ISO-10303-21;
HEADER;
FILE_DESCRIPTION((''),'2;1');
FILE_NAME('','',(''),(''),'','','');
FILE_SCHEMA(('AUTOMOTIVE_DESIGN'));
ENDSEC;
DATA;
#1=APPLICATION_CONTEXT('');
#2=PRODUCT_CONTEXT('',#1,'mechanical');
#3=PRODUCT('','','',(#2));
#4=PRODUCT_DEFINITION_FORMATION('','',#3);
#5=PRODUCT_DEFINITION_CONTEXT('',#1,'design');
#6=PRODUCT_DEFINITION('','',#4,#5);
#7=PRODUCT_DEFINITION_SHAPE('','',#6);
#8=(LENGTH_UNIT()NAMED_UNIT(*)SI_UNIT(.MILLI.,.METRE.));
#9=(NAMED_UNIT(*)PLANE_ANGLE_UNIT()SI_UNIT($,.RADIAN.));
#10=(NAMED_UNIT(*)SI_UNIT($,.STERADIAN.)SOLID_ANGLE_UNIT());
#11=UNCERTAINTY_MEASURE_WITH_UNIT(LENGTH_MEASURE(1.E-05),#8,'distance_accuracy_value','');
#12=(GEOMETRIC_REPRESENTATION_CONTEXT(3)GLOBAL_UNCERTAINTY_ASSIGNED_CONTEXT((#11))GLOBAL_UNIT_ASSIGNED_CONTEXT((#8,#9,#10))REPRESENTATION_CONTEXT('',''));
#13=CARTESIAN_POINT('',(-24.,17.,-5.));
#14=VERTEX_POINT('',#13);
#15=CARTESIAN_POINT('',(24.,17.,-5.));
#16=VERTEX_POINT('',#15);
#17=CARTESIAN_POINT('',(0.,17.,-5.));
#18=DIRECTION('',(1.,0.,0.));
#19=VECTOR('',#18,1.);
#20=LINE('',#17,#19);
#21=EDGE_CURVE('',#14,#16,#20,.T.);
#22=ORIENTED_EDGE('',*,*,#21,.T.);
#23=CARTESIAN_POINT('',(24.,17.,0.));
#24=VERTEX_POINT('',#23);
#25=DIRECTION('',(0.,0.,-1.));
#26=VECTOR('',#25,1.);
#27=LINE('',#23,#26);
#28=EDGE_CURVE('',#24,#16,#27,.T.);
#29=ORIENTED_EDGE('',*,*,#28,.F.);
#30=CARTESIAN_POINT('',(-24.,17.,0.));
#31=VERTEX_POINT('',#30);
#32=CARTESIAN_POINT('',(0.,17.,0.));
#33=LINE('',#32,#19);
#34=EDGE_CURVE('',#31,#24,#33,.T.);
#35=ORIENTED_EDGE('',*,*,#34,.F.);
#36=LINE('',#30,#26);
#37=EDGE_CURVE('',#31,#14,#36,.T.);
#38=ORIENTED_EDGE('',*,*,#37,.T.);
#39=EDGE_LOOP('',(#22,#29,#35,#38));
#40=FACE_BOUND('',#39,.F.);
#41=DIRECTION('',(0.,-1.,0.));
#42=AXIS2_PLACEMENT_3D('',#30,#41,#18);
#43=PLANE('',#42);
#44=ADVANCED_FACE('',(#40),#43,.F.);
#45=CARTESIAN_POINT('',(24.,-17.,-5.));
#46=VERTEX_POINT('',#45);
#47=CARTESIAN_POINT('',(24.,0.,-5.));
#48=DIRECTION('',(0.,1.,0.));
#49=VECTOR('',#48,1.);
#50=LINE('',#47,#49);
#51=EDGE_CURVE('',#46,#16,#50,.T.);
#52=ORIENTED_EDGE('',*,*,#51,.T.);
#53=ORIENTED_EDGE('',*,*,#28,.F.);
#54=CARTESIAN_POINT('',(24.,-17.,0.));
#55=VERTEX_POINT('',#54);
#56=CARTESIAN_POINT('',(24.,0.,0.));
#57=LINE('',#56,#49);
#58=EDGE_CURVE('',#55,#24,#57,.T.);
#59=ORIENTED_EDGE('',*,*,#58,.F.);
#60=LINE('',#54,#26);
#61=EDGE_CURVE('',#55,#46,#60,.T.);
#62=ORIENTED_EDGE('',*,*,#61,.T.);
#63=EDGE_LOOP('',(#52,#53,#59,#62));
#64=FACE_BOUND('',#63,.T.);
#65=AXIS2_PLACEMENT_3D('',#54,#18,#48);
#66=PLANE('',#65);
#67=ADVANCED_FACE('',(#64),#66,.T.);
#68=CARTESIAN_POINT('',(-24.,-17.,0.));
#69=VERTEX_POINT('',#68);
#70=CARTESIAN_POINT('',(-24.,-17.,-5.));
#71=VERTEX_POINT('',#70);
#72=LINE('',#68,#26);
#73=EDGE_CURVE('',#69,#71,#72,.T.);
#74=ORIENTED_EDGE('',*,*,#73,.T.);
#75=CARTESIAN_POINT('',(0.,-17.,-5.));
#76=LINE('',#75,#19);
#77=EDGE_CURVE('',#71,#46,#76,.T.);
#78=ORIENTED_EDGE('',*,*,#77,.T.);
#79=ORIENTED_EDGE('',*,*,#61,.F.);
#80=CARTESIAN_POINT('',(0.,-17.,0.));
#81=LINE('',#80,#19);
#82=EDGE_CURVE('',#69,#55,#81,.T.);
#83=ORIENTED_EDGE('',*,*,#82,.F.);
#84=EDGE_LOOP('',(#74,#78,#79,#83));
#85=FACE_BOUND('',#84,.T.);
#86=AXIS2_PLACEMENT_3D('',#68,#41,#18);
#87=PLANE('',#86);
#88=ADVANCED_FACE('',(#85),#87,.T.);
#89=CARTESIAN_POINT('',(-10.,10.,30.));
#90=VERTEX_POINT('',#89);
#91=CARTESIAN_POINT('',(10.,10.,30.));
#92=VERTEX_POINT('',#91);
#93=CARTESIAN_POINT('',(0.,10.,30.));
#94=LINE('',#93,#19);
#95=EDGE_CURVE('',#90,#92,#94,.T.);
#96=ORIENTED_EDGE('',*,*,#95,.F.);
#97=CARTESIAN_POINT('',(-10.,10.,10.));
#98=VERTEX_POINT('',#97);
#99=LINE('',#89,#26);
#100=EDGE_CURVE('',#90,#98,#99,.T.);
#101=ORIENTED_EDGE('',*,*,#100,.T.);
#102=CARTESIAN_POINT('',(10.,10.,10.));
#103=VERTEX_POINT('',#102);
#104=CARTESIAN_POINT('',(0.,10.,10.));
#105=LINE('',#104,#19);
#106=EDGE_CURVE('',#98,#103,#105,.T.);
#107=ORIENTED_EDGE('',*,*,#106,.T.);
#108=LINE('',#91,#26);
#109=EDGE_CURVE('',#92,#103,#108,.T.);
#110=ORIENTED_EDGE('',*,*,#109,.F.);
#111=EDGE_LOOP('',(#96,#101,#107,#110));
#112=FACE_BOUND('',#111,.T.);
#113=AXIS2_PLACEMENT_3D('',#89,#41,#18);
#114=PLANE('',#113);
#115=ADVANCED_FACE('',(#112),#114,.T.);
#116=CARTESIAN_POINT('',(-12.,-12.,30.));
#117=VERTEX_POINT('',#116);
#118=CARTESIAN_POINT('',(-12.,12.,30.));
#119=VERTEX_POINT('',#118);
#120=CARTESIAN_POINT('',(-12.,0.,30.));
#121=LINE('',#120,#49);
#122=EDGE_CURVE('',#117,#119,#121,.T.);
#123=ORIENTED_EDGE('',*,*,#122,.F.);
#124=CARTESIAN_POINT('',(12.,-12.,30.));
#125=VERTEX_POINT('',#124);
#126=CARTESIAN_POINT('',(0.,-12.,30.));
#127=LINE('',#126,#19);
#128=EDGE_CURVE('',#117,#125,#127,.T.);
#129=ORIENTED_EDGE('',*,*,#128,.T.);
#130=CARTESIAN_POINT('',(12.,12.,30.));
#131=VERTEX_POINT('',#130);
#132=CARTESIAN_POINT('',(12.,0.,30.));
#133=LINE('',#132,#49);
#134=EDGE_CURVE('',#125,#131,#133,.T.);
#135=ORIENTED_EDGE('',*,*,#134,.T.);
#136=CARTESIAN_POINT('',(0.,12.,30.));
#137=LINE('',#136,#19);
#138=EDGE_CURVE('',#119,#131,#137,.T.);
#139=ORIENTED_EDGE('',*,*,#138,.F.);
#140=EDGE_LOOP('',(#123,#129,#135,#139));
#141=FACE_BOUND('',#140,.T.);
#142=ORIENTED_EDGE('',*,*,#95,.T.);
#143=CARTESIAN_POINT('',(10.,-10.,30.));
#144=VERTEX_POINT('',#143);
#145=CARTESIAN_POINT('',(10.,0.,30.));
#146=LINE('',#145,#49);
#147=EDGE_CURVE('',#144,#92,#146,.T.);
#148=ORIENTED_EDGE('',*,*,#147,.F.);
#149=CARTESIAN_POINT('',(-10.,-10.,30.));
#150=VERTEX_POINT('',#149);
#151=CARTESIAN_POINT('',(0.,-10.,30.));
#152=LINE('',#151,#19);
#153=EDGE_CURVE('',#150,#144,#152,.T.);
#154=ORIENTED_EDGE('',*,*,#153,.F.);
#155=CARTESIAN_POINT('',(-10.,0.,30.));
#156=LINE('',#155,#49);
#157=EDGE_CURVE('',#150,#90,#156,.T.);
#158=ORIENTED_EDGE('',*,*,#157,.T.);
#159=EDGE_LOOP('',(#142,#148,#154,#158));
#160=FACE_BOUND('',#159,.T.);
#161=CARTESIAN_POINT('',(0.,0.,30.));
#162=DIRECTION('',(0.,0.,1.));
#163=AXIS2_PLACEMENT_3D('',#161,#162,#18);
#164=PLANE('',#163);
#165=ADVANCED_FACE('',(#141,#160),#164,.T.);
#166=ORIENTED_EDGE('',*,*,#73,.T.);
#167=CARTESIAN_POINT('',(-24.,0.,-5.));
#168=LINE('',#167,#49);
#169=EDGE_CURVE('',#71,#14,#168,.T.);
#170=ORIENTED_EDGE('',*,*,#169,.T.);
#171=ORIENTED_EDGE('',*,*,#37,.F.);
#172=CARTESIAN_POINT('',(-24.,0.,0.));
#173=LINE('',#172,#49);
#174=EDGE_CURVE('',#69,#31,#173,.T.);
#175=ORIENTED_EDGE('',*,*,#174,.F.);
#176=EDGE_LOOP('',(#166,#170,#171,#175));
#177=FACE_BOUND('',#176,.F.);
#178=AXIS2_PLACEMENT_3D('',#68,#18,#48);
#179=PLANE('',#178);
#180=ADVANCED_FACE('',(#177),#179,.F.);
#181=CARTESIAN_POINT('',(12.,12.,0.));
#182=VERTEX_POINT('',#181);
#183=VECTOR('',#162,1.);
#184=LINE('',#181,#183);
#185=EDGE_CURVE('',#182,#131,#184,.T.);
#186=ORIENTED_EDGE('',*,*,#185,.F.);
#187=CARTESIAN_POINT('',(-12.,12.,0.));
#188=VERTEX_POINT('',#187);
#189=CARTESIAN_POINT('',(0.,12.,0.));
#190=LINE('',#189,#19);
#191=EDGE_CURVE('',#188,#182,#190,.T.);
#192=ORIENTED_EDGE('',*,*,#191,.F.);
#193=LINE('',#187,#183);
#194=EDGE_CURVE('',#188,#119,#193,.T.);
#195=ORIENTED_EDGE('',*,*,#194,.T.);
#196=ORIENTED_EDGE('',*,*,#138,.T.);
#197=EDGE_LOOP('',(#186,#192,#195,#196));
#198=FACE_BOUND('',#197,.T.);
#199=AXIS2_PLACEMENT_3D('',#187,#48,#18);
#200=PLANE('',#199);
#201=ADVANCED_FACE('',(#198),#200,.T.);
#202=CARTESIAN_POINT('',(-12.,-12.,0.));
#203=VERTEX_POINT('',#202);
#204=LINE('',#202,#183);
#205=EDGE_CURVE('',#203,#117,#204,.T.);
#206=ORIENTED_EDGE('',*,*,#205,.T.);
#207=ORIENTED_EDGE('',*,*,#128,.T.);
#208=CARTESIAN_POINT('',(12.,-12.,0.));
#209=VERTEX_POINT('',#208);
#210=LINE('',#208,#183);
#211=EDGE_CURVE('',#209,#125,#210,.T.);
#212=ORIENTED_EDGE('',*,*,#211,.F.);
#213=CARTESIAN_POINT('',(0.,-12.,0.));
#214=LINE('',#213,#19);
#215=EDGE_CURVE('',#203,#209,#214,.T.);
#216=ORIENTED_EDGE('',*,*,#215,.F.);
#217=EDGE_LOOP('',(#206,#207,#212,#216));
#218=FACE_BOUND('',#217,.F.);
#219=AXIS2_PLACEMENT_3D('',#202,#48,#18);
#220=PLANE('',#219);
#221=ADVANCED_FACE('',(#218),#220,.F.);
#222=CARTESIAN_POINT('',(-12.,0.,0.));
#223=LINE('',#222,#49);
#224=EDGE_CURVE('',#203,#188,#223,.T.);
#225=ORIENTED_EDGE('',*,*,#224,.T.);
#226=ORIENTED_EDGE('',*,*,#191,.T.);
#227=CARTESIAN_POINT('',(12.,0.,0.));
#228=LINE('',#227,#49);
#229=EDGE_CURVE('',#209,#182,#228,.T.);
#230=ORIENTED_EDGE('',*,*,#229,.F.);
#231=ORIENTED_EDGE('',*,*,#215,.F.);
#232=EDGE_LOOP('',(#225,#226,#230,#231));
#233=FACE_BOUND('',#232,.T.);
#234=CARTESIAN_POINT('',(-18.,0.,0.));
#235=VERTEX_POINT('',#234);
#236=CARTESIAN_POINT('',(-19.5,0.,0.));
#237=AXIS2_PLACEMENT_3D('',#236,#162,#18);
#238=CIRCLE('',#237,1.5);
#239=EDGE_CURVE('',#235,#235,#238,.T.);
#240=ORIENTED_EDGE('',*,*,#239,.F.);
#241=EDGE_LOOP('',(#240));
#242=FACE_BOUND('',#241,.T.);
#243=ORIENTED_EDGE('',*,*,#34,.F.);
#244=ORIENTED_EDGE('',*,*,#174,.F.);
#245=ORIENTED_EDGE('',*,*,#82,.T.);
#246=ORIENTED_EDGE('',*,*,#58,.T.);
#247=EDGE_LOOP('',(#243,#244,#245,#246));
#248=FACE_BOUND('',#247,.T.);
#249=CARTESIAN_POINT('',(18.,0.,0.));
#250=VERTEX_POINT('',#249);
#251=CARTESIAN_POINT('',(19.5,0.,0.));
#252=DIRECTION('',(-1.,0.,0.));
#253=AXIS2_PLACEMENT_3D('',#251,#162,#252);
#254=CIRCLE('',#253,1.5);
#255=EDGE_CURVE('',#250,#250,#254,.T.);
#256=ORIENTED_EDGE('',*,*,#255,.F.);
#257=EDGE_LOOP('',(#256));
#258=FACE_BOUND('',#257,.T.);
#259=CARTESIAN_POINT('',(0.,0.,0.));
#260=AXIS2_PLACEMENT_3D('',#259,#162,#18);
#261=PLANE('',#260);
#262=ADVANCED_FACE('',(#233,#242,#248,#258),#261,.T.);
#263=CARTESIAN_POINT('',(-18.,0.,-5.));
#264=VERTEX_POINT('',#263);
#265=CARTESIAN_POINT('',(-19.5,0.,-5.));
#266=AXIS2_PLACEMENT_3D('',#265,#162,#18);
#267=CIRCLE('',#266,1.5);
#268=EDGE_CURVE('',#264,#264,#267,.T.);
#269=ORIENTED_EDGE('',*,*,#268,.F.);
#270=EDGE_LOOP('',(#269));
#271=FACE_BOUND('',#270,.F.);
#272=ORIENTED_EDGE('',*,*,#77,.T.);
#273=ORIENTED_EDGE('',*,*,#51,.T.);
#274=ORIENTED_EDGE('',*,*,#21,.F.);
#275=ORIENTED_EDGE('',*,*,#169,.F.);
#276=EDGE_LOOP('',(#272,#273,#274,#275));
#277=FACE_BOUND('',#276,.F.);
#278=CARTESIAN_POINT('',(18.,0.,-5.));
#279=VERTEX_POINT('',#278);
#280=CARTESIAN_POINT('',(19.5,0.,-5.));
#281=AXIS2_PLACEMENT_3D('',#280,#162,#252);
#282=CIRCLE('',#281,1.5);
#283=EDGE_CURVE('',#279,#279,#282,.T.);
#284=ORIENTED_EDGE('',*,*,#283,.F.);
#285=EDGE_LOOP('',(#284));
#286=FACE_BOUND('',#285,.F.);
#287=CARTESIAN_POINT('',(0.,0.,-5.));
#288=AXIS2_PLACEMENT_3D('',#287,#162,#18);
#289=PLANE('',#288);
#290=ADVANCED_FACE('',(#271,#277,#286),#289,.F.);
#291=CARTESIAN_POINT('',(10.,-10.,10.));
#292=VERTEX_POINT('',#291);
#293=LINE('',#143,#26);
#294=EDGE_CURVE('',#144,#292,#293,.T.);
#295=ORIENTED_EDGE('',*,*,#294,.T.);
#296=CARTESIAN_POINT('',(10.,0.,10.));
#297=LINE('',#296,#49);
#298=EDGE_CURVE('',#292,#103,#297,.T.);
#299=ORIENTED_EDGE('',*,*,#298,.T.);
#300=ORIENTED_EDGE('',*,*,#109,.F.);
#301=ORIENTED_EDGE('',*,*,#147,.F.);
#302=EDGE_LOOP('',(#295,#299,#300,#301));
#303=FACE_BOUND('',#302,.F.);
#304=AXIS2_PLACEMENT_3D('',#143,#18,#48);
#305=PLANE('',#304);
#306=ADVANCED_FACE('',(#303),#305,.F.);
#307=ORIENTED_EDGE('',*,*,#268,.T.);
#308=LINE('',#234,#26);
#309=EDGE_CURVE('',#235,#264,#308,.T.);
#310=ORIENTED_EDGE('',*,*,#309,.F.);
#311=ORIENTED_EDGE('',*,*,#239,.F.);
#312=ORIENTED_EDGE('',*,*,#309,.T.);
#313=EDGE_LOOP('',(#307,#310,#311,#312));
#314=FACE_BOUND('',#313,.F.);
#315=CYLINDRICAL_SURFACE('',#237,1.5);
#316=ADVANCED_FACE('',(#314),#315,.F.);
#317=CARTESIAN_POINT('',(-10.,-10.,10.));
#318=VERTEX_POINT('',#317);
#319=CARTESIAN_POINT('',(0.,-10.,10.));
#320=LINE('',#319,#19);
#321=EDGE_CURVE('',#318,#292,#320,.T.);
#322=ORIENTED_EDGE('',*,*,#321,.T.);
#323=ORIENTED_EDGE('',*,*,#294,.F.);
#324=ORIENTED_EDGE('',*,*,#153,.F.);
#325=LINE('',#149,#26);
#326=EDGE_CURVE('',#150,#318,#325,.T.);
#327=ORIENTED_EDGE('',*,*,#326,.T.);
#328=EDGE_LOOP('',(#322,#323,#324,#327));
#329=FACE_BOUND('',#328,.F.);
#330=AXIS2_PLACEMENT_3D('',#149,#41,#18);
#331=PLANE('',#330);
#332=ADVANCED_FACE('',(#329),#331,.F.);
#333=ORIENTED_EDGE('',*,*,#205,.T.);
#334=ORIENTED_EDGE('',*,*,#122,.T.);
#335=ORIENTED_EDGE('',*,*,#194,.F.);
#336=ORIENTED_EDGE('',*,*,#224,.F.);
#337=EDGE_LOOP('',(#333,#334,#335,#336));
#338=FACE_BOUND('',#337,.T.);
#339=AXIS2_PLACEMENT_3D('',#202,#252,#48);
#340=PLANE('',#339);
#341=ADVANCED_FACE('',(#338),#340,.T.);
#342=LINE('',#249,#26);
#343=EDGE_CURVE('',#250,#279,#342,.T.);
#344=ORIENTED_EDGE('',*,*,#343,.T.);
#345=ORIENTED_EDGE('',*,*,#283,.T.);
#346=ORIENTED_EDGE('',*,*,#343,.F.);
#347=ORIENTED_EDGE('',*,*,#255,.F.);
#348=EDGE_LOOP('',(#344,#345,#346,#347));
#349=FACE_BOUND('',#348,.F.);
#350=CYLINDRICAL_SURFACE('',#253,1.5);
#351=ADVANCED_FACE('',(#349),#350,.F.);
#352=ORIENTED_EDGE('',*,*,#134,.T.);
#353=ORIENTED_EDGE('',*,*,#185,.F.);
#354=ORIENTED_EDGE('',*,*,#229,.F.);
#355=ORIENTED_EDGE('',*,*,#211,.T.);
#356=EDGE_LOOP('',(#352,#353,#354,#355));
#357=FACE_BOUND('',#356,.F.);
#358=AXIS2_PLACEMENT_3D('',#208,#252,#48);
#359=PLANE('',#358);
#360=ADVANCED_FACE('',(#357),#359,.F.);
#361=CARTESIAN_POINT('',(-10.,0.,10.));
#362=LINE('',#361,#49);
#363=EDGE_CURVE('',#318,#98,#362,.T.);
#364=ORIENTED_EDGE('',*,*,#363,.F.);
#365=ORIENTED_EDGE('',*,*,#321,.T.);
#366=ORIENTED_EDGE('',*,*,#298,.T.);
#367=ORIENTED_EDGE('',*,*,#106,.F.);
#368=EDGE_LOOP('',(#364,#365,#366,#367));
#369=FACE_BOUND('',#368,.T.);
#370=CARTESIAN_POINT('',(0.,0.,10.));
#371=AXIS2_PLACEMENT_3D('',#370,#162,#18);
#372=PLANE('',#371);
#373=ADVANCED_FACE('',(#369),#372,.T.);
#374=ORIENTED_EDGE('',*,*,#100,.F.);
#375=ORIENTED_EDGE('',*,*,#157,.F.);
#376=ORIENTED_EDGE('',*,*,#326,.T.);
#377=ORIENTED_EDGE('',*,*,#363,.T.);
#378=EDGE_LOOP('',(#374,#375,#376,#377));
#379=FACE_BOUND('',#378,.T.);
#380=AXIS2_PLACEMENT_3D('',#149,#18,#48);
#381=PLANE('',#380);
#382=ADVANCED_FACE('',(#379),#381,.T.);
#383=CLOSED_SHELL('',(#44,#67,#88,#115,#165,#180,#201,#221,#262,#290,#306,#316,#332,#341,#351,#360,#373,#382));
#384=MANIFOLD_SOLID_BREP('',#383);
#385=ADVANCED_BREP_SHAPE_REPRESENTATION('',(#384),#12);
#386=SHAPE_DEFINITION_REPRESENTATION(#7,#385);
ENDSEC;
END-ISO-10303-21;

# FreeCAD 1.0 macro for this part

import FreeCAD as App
import Part
import Sketcher
from FreeCAD import Vector
Q = App.Units.Quantity


def add_polygon(sketch, points):
    """Adds a closed chain of lines whose ends are joined by coincident constraints."""
    first, n = sketch.GeometryCount, len(points)
    for a, b in zip(points, points[1:] + points[:1]):
        sketch.addGeometry(Part.LineSegment(App.Vector(*a, 0), App.Vector(*b, 0)), False)
    for i in range(n):
        sketch.addConstraint(Sketcher.Constraint("Coincident", first + i, 2, first + (i + 1) % n, 1))

doc = App.newDocument("Part")
body = doc.addObject("PartDesign::Body", "Body")

# Sketch on XY plane
sketch1 = body.newObject("Sketcher::SketchObject", "Sketch")
sketch1.AttachmentSupport = (doc.getObject("XY_Plane"), [""])
sketch1.MapMode = "FlatFace"
add_polygon(sketch1, [(-24, 17), (-24, -17), (24, -17), (24, 17)])  # lines 0-3
sketch1.addConstraint([
    Sketcher.Constraint("Vertical", 0),
    Sketcher.Constraint("Horizontal", 1),
    Sketcher.Constraint("Vertical", 2),
    Sketcher.Constraint("Horizontal", 3),
    Sketcher.Constraint("Symmetric", 0, 2, 2, 2, -1, 1),
    Sketcher.Constraint("DistanceX", 1, 1, 1, 2, Q("48 mm")),
    Sketcher.Constraint("DistanceY", 0, 2, 0, 1, Q("34 mm")),
])
pad1 = body.newObject("PartDesign::Pad", "Pad")
pad1.Profile = sketch1
pad1.Length = 5
pad1.Reversed = True

# Sketch on XY plane
sketch2 = body.newObject("Sketcher::SketchObject", "Sketch001")
sketch2.AttachmentSupport = (doc.getObject("XY_Plane"), [""])
sketch2.MapMode = "FlatFace"
sketch2.addGeometry([
    Part.Circle(Vector(-19.5, 0, 0), Vector(0, 0, 1), 1.5),
    Part.Circle(Vector(19.5, 0, 0), Vector(0, 0, 1), 1.5),
], False)
sketch2.addConstraint([
    Sketcher.Constraint("Equal", 0, 1),
    Sketcher.Constraint("Symmetric", 0, 3, 1, 3, -1, 1),
    Sketcher.Constraint("PointOnObject", 0, 3, -1),
    Sketcher.Constraint("Diameter", 0, Q("3 mm")),
    Sketcher.Constraint("DistanceX", 0, 3, 1, 3, Q("39 mm")),
])
pocket1 = body.newObject("PartDesign::Pocket", "Pocket")
pocket1.Profile = sketch2
pocket1.Length = 5

# Sketch on XY plane
sketch3 = body.newObject("Sketcher::SketchObject", "Sketch002")
sketch3.AttachmentSupport = (doc.getObject("XY_Plane"), [""])
sketch3.MapMode = "FlatFace"
add_polygon(sketch3, [(-12, 12), (-12, -12), (12, -12), (12, 12)])  # lines 0-3
sketch3.addConstraint([
    Sketcher.Constraint("Vertical", 0),
    Sketcher.Constraint("Horizontal", 1),
    Sketcher.Constraint("Vertical", 2),
    Sketcher.Constraint("Horizontal", 3),
    Sketcher.Constraint("Symmetric", 0, 2, 2, 2, -1, 1),
    Sketcher.Constraint("Equal", 3, 0),
    Sketcher.Constraint("DistanceX", 1, 1, 1, 2, Q("24 mm")),
])
pad2 = body.newObject("PartDesign::Pad", "Pad001")
pad2.Profile = sketch3
pad2.Length = 30

# Sketch on XY plane
sketch4 = body.newObject("Sketcher::SketchObject", "Sketch003")
sketch4.AttachmentSupport = (doc.getObject("XY_Plane"), [""])
sketch4.MapMode = "FlatFace"
sketch4.AttachmentOffset = App.Placement(Vector(0, 0, 30), App.Rotation())
add_polygon(sketch4, [(-10, 10), (-10, -10), (10, -10), (10, 10)])  # lines 0-3
sketch4.addConstraint([
    Sketcher.Constraint("Vertical", 0),
    Sketcher.Constraint("Horizontal", 1),
    Sketcher.Constraint("Vertical", 2),
    Sketcher.Constraint("Horizontal", 3),
    Sketcher.Constraint("Symmetric", 0, 2, 2, 2, -1, 1),
    Sketcher.Constraint("Equal", 3, 0),
    Sketcher.Constraint("DistanceX", 1, 1, 1, 2, Q("20 mm")),
])
pocket2 = body.newObject("PartDesign::Pocket", "Pocket001")
pocket2.Profile = sketch4
pocket2.Length = 20

doc.recompute()
